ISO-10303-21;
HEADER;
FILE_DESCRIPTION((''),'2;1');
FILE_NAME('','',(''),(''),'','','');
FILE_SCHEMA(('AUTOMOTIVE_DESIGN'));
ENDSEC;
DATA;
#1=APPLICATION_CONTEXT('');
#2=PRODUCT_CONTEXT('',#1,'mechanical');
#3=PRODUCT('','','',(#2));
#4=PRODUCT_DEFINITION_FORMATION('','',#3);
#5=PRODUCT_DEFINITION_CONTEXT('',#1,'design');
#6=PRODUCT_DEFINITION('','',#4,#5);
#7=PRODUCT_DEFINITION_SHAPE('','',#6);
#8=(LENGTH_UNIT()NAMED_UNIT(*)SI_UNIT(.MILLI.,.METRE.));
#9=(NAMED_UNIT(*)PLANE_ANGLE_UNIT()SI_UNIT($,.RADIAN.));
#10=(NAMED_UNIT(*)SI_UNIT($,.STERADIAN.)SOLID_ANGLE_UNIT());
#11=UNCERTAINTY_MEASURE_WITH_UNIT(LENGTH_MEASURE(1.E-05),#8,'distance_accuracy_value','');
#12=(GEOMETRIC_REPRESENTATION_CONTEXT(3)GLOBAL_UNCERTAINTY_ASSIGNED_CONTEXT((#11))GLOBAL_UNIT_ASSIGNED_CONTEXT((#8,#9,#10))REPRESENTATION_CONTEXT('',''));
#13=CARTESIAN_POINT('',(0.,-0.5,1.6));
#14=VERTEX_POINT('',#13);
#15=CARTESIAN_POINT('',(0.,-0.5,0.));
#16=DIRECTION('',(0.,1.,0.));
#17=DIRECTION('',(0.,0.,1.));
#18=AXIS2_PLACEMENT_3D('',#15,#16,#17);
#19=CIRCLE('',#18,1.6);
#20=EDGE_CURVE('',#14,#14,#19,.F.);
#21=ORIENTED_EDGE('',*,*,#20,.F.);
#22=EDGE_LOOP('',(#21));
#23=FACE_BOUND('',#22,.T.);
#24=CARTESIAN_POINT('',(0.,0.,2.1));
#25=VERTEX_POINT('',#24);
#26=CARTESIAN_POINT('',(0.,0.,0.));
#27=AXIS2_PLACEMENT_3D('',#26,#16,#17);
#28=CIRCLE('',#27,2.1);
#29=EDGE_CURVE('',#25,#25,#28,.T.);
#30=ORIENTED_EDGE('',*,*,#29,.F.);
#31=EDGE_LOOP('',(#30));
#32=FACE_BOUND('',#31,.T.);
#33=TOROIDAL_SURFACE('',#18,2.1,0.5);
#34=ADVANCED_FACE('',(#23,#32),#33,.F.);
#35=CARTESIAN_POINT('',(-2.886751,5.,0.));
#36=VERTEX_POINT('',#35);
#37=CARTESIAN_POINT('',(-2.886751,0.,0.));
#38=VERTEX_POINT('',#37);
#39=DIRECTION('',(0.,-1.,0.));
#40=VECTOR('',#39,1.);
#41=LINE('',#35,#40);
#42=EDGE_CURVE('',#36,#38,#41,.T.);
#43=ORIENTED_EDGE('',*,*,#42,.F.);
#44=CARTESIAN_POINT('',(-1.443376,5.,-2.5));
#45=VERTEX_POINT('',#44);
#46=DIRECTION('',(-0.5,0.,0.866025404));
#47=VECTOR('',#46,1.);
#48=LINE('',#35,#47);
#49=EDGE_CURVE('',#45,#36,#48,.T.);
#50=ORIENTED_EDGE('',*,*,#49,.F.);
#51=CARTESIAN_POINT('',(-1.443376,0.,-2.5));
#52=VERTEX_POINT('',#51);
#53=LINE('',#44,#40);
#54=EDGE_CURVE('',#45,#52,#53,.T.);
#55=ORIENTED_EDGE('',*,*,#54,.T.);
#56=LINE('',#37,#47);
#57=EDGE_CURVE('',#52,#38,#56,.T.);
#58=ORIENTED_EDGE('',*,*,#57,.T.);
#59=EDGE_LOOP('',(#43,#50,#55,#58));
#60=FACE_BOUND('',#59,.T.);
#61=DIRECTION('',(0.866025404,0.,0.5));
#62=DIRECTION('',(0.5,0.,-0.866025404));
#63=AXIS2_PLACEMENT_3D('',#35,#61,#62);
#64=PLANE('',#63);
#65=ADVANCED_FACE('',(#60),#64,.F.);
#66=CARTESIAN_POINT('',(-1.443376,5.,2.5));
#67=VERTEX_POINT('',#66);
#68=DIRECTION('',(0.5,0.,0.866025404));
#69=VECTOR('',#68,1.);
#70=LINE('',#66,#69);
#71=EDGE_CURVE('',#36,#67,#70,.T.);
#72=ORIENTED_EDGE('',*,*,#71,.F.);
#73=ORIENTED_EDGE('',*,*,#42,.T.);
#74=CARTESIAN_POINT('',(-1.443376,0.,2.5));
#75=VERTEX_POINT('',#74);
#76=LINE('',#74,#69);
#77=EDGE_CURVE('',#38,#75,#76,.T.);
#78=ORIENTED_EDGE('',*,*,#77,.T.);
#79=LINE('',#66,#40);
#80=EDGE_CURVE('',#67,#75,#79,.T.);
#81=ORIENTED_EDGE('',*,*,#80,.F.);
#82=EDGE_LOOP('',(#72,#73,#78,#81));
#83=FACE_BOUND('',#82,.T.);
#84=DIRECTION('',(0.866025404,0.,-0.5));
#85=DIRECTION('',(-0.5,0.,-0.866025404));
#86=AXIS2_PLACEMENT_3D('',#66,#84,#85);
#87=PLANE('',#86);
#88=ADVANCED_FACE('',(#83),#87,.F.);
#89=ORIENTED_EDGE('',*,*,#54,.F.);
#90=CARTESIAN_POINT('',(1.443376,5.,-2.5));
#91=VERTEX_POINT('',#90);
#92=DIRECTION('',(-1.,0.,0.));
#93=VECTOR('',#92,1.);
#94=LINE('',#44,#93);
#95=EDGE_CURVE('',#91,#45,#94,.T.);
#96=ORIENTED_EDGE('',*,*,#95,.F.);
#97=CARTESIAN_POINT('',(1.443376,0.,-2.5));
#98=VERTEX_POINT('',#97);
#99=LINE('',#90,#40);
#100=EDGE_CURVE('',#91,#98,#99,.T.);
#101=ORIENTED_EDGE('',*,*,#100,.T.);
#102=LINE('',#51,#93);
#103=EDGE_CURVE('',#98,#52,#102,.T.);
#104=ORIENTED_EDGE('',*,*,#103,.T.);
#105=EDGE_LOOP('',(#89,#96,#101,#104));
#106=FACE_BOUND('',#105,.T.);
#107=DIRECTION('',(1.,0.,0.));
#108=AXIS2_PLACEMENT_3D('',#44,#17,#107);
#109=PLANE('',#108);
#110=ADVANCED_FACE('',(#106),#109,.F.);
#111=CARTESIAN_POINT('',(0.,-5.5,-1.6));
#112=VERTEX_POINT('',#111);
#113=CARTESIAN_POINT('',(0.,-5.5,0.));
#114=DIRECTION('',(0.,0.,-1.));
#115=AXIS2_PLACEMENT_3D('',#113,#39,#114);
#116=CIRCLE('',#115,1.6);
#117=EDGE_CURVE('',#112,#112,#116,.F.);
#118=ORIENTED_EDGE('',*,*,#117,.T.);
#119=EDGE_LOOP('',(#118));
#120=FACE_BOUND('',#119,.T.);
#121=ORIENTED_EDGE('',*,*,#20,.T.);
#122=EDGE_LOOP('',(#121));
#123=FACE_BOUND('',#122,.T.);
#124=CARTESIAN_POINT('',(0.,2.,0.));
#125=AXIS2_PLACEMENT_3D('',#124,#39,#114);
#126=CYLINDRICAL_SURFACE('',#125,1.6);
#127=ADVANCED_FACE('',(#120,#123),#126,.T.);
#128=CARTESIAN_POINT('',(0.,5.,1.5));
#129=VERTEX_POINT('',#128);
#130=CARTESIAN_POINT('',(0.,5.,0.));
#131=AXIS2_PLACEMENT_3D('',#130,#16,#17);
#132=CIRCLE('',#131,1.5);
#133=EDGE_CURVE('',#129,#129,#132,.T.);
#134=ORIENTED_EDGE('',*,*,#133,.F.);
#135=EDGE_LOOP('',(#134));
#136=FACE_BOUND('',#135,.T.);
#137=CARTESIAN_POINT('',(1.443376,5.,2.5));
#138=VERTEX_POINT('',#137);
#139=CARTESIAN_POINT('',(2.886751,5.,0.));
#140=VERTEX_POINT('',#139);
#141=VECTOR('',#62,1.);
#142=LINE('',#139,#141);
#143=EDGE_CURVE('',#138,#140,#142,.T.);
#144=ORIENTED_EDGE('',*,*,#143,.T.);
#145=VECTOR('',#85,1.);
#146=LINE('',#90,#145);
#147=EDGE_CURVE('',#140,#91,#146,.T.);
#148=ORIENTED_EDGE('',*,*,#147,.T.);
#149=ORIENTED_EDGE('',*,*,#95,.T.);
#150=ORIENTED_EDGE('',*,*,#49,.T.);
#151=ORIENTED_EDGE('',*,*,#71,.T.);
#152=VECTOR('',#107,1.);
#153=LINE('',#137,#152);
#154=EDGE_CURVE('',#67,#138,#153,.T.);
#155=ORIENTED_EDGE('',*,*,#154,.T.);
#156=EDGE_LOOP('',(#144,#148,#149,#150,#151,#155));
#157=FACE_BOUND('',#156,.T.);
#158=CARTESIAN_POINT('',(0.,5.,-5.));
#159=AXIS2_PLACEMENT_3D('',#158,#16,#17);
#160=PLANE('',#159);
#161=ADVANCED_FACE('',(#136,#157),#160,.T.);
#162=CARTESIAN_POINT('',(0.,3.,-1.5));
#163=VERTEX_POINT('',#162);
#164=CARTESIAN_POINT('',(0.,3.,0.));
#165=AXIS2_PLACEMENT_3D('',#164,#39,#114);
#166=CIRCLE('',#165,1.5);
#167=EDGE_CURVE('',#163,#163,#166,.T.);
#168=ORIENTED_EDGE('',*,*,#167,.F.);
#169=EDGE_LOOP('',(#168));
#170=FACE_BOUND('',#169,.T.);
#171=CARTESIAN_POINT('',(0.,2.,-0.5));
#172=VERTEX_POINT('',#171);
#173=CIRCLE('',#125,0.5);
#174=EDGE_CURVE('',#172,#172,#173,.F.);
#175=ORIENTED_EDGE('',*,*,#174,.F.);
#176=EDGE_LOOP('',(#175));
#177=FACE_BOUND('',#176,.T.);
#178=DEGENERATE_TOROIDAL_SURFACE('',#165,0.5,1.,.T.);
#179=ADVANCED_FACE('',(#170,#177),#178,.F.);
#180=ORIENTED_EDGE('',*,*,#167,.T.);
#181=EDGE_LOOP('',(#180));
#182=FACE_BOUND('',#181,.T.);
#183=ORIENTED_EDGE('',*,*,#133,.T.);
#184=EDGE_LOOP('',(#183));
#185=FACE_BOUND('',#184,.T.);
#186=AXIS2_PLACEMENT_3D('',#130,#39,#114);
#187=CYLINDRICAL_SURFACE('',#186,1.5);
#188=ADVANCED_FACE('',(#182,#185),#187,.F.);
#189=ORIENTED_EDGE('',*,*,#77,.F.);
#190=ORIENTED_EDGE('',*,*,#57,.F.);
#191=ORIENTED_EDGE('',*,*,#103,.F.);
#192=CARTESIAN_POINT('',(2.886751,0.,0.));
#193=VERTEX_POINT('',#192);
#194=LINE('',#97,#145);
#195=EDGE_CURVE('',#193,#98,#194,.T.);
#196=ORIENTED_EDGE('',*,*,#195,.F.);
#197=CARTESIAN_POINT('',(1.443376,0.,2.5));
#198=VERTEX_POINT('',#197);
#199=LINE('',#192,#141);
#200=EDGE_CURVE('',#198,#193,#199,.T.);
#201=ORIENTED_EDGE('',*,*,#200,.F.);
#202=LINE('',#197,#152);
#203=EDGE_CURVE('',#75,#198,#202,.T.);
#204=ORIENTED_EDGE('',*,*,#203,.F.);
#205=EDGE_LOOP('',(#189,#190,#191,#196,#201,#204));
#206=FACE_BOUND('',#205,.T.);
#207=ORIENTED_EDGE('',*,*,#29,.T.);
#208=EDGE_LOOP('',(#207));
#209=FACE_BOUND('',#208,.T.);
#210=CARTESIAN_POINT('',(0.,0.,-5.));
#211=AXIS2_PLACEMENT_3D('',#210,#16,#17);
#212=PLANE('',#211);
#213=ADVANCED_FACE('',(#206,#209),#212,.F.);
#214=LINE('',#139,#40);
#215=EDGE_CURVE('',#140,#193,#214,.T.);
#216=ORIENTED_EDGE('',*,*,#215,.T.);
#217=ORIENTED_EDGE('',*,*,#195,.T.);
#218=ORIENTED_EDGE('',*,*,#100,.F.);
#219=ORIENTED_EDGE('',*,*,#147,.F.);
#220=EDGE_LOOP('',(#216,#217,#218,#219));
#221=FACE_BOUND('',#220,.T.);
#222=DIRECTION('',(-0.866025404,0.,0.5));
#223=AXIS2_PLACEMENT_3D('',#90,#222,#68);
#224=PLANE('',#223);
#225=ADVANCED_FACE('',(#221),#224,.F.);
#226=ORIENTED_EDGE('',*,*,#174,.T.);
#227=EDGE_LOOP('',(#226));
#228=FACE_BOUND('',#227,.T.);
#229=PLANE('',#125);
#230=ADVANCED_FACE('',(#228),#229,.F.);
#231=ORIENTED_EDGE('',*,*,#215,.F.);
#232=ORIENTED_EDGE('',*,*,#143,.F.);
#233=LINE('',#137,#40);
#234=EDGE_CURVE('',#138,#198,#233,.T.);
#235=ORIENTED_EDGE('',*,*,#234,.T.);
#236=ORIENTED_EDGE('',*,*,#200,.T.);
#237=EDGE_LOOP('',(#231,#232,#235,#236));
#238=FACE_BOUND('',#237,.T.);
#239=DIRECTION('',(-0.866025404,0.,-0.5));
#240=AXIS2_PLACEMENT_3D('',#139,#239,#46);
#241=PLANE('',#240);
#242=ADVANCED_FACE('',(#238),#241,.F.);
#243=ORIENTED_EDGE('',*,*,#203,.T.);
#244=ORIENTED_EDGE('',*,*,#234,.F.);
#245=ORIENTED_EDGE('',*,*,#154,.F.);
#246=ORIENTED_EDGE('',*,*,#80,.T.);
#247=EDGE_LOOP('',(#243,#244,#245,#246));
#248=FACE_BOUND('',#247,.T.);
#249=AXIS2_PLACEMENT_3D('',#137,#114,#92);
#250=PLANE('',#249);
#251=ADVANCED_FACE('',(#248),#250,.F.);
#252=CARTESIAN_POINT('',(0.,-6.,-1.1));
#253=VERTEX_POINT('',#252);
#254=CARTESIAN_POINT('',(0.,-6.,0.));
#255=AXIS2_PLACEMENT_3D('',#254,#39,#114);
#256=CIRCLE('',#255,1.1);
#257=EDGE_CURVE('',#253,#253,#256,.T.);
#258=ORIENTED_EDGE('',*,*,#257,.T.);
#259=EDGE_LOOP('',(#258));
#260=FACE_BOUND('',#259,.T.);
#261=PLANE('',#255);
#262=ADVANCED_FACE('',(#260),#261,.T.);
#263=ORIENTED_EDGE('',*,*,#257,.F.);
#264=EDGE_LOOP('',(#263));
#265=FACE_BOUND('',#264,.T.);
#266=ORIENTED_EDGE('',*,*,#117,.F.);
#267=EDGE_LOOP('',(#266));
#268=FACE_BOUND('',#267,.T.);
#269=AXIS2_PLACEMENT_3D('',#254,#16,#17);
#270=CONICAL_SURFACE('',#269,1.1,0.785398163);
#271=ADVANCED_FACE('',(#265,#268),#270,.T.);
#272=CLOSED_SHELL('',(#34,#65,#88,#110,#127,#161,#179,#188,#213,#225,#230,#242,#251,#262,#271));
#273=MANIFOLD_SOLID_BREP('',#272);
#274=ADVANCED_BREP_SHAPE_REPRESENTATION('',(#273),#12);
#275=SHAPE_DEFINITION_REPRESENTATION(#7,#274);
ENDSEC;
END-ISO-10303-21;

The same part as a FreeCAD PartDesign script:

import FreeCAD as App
import Part
import Sketcher
from FreeCAD import Vector
Q = App.Units.Quantity


def edges_at(feature, points):
    """Names of the edges that pass closest to the given points."""
    edges = feature.Shape.Edges
    near = lambda p: min(range(len(edges)), key=lambda i: edges[i].distToShape(Part.Vertex(*p))[0])
    return sorted({f"Edge{near(p) + 1}" for p in points})


def add_polygon(sketch, points):
    """Adds a closed chain of lines whose ends are joined by coincident constraints."""
    first, n = sketch.GeometryCount, len(points)
    for a, b in zip(points, points[1:] + points[:1]):
        sketch.addGeometry(Part.LineSegment(App.Vector(*a, 0), App.Vector(*b, 0)), False)
    for i in range(n):
        sketch.addConstraint(Sketcher.Constraint("Coincident", first + i, 2, first + (i + 1) % n, 1))

doc = App.newDocument("Part")
body = doc.addObject("PartDesign::Body", "Body")

sketch1 = doc.addObject("Sketcher::SketchObject", "Sketch")
body.addObject(sketch1)
sketch1.AttachmentSupport = (doc.XZ_Plane, [""])
sketch1.MapMode = "FlatFace"
add_polygon(sketch1, [(1.4, -2.5), (-1.4, -2.5), (-2.9, 0), (-1.4, 2.5), (1.4, 2.5), (2.9, 0)])
sketch1.addGeometry(Part.Circle(Vector(0, 0, 0), Vector(0, 0, 1), 1.5), False)
sketch1.addConstraint([
    Sketcher.Constraint("Horizontal", 0),
    Sketcher.Constraint("Horizontal", 3),
    Sketcher.Constraint("Coincident", 6, 3, -1, 1),
    Sketcher.Constraint("Symmetric", 0, 2, 3, 2, -1, 1),
    Sketcher.Constraint("Symmetric", 1, 2, 4, 2, -1, 1),
    Sketcher.Constraint("PointOnObject", 1, 2, -1),
    Sketcher.Constraint("Parallel", 2, 5),
    Sketcher.Constraint("Vertical", 0, 2, 2, 2),
    Sketcher.Constraint("Diameter", 6, Q("3 mm")),
    Sketcher.Constraint("Angle", 1, Q("120 deg")),
    Sketcher.Constraint("DistanceY", 0, 2, 2, 2, Q("5 mm")),
    Sketcher.Constraint("DistanceX", 0, 2, 0, 1, Q("2.886751 mm")),
])
pad1 = doc.addObject("PartDesign::Pad", "Pad")
body.addObject(pad1)
pad1.Profile = sketch1
pad1.Length = 5
pad1.Reversed = True

sketch2 = doc.addObject("Sketcher::SketchObject", "Sketch001")
body.addObject(sketch2)
sketch2.AttachmentSupport = (doc.XZ_Plane, [""])
sketch2.MapMode = "FlatFace"
sketch2.addGeometry(Part.Circle(Vector(0, 0, 0), Vector(0, 0, 1), 1.6), False)
sketch2.addConstraint([
    Sketcher.Constraint("Coincident", 0, 3, -1, 1),
    Sketcher.Constraint("Diameter", 0, Q("3.2 mm")),
])
pad2 = doc.addObject("PartDesign::Pad", "Pad001")
body.addObject(pad2)
pad2.Profile = sketch2
pad2.Type = "TwoLengths"
pad2.Length = 6
pad2.Length2 = 2
doc.recompute()

chamfer = doc.addObject("PartDesign::Chamfer", "Chamfer")
body.addObject(chamfer)
chamfer.Base = (pad2, edges_at(pad2, [(0, -6, 1.6)]))
chamfer.Size = 0.5
doc.recompute()

fillet = doc.addObject("PartDesign::Fillet", "Fillet")
body.addObject(fillet)
fillet.Base = (chamfer, edges_at(chamfer, [(0, 0, 1.6)]))
fillet.Radius = 0.5
doc.recompute()

fillet2 = doc.addObject("PartDesign::Fillet", "Fillet001")
body.addObject(fillet2)
fillet2.Base = (fillet, edges_at(fillet, [(0, 2, -1.5)]))
fillet2.Radius = 1

doc.recompute()
